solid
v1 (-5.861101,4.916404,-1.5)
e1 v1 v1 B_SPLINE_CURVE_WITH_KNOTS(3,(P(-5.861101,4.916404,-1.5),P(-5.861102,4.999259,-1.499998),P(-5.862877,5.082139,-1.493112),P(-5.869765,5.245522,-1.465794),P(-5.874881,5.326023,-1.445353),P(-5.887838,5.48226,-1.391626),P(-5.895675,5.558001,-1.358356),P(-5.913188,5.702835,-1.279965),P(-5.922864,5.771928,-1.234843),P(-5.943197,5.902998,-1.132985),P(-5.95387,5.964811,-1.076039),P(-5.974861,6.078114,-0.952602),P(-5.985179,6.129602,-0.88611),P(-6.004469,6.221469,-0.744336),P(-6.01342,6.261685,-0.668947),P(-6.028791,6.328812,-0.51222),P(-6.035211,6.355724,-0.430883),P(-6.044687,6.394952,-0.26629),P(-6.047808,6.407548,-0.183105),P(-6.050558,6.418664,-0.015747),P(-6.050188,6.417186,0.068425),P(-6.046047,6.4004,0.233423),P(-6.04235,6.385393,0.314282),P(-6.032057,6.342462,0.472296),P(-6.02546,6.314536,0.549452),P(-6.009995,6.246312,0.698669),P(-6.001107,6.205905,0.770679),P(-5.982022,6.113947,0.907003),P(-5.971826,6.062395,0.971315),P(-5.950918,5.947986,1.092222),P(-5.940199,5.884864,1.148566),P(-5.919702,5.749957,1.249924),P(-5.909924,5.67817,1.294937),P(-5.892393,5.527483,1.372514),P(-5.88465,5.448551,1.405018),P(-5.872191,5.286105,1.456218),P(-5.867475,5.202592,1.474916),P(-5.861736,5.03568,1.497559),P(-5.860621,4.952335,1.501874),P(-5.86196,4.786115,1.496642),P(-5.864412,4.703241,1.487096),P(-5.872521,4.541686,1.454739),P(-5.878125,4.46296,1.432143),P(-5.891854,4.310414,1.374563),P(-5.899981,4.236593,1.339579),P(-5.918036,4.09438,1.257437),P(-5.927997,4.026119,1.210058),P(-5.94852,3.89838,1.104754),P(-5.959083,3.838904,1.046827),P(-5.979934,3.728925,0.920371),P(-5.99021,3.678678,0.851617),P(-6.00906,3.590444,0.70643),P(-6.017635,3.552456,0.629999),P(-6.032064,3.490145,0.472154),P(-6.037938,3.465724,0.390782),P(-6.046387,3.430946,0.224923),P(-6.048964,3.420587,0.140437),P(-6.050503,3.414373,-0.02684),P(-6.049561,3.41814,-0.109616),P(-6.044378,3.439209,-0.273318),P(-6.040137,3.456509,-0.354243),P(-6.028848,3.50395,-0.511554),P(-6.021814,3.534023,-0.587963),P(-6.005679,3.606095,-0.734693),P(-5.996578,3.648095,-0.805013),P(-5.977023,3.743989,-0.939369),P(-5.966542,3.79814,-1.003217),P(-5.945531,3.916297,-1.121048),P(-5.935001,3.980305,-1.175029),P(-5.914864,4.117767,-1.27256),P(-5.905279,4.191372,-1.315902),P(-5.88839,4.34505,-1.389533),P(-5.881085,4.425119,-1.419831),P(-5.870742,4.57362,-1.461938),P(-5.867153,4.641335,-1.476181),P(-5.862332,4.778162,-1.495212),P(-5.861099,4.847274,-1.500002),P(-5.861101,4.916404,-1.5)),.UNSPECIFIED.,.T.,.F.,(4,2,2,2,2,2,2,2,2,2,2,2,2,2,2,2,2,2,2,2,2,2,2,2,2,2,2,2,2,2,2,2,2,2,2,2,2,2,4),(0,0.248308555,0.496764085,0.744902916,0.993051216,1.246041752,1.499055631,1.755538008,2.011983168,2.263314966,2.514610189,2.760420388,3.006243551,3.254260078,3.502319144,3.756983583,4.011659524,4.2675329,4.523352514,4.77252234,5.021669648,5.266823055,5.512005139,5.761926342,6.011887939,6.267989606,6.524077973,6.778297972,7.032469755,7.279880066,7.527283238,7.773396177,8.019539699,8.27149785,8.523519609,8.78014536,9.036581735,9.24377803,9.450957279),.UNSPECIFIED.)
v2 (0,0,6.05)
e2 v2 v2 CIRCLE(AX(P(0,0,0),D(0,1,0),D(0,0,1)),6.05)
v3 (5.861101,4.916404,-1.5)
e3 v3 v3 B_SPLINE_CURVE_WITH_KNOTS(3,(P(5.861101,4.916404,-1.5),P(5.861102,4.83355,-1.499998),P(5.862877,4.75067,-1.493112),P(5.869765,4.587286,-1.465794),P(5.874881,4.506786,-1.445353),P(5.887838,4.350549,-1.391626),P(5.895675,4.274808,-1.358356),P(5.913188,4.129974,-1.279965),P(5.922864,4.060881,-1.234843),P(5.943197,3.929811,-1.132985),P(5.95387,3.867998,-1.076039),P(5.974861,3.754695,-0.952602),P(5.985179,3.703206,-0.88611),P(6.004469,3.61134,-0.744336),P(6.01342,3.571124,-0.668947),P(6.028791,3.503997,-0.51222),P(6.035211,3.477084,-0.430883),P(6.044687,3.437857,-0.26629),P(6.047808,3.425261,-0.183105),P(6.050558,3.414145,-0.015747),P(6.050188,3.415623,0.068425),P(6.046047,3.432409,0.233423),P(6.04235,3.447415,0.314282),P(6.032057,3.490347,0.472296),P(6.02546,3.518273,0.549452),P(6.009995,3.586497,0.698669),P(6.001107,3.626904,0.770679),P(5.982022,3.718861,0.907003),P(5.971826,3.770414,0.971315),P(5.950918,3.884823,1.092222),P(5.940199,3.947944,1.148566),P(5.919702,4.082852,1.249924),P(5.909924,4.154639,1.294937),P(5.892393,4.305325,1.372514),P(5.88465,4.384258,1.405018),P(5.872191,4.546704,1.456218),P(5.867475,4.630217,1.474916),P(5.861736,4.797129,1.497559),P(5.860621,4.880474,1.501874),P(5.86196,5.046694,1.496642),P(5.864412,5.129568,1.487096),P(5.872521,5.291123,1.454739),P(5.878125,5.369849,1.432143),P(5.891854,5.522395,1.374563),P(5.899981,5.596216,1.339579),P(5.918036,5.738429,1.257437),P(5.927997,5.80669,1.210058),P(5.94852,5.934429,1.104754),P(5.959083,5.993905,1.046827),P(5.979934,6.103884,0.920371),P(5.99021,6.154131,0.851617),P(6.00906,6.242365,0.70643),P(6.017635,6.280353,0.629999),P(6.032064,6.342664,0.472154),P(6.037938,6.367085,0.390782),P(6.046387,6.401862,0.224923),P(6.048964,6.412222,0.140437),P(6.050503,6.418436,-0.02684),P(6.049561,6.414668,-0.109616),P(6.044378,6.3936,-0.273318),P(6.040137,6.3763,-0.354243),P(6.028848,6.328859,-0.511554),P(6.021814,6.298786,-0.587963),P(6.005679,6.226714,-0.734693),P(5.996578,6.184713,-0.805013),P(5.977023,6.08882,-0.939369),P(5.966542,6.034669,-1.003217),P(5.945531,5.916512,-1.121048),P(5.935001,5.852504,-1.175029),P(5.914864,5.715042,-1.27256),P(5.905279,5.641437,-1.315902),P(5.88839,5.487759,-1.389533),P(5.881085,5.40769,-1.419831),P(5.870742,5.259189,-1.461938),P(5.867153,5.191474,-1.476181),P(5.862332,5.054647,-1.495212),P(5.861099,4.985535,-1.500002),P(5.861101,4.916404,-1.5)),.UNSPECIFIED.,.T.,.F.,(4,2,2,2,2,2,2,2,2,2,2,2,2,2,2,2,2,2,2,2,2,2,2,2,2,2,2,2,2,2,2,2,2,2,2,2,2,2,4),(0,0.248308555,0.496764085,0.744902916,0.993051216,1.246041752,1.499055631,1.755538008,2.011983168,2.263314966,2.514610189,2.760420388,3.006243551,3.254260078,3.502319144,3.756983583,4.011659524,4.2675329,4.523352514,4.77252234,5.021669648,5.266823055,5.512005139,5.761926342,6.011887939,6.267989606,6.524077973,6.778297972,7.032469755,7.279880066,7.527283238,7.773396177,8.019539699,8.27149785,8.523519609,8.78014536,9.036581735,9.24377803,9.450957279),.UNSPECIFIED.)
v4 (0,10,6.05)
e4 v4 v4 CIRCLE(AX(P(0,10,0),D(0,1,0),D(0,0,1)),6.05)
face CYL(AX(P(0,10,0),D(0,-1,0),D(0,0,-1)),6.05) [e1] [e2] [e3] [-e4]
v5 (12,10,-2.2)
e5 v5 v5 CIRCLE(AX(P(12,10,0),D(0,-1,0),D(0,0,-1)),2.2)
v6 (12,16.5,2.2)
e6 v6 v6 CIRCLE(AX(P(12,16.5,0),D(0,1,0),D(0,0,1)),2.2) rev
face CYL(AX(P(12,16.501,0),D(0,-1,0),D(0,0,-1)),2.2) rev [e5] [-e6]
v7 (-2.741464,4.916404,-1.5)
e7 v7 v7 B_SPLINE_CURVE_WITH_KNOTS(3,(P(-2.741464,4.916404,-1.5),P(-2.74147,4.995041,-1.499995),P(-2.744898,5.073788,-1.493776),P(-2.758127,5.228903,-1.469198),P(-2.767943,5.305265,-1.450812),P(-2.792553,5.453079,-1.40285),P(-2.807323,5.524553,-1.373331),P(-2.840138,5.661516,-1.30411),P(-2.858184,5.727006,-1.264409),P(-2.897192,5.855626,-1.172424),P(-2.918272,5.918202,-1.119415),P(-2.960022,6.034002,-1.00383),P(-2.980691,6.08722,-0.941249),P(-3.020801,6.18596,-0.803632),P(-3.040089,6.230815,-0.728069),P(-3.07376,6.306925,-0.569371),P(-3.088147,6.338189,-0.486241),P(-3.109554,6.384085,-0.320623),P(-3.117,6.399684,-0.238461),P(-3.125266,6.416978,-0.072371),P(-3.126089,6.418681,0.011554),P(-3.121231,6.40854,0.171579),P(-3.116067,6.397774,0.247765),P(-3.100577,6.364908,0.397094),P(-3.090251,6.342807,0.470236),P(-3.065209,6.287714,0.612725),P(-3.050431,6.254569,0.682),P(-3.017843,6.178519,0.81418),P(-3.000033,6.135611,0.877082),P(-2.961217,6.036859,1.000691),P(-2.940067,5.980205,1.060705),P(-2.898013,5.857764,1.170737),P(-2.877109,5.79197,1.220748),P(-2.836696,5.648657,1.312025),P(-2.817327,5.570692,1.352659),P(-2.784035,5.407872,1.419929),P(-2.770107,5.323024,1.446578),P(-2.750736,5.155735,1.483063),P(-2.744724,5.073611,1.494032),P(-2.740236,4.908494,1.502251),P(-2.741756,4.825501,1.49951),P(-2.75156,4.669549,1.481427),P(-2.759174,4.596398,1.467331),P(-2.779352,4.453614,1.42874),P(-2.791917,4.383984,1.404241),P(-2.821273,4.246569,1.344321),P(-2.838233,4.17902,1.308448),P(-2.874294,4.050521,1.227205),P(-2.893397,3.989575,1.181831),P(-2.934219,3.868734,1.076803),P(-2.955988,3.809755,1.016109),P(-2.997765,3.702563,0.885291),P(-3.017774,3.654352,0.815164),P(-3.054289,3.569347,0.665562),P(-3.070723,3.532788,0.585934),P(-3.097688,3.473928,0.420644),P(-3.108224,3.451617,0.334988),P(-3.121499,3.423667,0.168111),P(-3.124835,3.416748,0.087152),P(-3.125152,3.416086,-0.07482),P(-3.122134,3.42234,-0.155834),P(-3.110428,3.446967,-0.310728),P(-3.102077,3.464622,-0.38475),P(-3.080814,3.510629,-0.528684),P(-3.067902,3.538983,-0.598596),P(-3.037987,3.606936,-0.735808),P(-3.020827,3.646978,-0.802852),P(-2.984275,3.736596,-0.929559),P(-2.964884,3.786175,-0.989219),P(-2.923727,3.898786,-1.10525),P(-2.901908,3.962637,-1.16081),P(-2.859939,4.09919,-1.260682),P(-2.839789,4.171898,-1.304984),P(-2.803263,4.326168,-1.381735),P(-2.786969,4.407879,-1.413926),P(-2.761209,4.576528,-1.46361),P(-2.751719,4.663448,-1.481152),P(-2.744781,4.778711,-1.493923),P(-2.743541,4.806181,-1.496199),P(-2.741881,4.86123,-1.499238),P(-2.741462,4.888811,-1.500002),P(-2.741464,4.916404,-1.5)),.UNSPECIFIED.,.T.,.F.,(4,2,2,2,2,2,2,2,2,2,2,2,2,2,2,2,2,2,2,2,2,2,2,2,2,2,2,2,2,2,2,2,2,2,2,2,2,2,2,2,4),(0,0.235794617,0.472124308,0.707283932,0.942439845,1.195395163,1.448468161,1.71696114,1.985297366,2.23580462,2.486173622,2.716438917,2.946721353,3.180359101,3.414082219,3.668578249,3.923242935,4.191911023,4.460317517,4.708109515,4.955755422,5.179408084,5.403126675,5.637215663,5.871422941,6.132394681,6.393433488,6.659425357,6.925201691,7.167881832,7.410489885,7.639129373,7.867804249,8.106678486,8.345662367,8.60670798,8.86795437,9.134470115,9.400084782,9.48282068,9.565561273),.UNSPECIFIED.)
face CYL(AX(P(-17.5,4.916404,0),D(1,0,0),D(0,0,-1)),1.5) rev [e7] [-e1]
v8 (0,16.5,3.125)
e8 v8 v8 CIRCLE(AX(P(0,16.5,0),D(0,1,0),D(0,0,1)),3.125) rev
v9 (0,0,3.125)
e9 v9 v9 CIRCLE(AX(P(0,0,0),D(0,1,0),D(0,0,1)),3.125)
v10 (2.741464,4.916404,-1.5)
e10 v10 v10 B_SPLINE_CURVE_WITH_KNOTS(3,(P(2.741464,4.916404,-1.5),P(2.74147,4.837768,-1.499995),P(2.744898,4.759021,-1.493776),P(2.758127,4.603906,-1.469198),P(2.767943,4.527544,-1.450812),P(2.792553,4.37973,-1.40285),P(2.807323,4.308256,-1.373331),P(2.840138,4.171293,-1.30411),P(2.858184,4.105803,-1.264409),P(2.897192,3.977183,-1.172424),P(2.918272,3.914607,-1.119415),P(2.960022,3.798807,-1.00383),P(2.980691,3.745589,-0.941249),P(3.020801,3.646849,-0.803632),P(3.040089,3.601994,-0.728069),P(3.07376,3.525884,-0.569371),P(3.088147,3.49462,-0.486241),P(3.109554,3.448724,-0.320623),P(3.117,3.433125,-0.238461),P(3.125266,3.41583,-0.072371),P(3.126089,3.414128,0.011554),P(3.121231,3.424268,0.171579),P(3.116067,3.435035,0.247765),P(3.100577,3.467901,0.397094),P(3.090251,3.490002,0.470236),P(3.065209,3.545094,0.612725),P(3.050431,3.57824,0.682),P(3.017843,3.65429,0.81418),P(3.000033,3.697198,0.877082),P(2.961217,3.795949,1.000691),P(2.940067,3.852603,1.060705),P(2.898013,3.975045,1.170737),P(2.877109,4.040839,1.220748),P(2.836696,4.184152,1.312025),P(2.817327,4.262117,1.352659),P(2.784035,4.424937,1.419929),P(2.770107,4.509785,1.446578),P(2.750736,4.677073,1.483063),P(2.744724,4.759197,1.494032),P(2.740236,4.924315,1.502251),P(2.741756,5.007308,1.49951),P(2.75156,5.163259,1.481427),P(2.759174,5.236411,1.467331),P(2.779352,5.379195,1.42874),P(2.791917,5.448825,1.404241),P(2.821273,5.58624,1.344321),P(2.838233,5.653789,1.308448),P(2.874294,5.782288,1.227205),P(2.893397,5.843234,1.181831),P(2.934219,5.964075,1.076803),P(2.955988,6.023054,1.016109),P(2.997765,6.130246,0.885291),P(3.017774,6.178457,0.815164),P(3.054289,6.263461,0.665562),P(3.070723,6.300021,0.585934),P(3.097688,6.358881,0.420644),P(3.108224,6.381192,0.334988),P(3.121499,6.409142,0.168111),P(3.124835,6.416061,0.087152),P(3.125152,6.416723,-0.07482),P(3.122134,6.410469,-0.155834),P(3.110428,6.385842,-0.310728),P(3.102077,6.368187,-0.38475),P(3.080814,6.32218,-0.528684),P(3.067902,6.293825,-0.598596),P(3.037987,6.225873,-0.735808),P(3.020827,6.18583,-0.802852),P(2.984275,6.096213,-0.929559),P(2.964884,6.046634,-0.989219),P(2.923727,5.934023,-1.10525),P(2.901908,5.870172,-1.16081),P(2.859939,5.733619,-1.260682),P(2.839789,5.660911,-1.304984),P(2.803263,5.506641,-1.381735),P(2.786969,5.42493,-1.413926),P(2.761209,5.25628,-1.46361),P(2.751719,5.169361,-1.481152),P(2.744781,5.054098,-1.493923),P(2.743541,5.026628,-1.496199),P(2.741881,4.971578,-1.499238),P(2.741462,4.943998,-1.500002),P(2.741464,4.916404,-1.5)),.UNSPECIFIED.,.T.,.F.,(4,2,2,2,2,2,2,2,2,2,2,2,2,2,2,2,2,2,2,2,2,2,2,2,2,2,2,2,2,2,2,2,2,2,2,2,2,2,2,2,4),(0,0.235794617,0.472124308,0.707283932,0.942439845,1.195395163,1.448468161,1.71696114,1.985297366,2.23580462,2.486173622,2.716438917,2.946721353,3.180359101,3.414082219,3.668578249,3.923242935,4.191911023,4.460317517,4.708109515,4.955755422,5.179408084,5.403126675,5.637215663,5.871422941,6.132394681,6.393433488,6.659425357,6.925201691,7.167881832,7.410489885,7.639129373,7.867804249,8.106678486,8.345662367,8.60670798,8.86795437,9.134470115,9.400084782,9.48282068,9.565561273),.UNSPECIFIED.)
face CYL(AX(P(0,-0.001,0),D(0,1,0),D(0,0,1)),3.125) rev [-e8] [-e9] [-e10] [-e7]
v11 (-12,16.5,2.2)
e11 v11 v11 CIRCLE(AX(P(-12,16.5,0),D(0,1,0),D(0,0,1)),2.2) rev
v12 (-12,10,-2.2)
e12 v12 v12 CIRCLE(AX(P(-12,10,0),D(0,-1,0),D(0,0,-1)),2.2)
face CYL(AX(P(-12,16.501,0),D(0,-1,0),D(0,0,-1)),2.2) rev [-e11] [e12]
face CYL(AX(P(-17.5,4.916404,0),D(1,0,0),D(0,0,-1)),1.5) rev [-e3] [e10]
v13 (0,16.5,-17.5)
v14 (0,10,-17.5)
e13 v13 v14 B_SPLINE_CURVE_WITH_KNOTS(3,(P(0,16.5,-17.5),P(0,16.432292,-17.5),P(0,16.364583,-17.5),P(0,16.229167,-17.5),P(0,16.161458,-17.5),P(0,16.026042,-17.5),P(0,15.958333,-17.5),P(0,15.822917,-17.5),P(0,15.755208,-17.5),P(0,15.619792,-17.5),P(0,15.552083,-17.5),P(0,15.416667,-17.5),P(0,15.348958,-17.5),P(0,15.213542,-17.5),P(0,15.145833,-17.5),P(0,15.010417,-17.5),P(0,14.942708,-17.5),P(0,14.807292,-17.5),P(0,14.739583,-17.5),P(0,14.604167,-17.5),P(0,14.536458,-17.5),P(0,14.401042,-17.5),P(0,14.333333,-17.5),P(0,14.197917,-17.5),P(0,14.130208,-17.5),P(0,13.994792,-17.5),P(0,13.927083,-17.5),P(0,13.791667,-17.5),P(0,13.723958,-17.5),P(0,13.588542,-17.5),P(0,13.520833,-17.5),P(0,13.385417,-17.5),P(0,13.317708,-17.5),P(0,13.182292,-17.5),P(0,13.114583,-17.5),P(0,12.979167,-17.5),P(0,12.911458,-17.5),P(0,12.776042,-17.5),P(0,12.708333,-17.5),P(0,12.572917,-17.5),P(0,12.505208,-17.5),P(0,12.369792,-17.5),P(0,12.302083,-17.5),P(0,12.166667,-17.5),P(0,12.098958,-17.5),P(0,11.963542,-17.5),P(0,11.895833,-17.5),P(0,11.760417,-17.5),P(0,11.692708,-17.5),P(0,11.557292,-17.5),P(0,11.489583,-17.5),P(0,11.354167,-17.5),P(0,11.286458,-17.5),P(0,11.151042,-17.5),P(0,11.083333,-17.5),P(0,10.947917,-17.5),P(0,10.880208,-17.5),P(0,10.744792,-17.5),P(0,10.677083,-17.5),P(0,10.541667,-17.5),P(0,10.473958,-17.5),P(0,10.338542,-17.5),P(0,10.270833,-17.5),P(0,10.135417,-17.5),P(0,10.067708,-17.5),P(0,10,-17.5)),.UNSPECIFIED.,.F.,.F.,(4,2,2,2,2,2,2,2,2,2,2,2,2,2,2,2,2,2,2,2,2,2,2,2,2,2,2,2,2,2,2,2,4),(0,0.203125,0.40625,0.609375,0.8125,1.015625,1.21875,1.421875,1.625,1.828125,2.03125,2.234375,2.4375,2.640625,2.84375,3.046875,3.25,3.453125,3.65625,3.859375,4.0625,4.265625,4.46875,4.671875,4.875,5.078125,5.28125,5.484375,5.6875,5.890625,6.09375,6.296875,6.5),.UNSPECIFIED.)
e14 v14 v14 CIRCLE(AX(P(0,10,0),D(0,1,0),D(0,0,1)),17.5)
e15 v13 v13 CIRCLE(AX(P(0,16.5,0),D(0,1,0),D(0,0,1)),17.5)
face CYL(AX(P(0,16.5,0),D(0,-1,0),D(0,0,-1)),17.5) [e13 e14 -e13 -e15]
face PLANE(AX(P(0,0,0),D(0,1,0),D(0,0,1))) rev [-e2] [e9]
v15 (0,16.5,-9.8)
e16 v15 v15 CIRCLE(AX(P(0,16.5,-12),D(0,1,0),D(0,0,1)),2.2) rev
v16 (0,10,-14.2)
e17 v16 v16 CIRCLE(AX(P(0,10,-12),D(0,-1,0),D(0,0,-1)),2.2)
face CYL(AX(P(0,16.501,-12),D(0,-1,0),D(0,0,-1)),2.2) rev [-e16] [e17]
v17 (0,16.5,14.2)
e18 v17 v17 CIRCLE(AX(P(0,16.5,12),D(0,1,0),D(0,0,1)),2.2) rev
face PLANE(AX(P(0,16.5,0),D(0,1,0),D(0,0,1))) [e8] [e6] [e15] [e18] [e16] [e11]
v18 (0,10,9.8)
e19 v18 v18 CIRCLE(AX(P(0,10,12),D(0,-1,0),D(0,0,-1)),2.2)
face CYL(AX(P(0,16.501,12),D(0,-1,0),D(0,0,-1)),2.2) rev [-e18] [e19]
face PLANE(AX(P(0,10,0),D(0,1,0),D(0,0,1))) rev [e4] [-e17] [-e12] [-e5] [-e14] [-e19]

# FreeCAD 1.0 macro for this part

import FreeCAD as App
import Part
import Sketcher
from FreeCAD import Vector
Q = App.Units.Quantity

doc = App.newDocument("Part")
body = doc.addObject("PartDesign::Body", "Body")

sketch1 = body.newObject("Sketcher::SketchObject", "Sketch")
sketch1.AttachmentSupport = (doc.getObject("XZ_Plane"), [""])
sketch1.MapMode = "FlatFace"
sketch1.addGeometry(Part.Circle(Vector(0, 0, 0), Vector(0, 0, 1), 6), False)
sketch1.addGeometry(Part.Circle(Vector(0, 0, 0), Vector(0, 0, 1), 3), False)
sketch1.addConstraint(Sketcher.Constraint("Coincident", 0, 3, -1, 1))
sketch1.addConstraint(Sketcher.Constraint("Coincident", 1, 3, -1, 1))
sketch1.addConstraint(Sketcher.Constraint("Diameter", 0, Q("12.1 mm")))
sketch1.addConstraint(Sketcher.Constraint("Diameter", 1, Q("6.1 mm")))
pad1 = body.newObject("PartDesign::Pad", "Pad")
pad1.Profile = sketch1
pad1.Length = 10
pad1.Reversed = True

sketch2 = body.newObject("Sketcher::SketchObject", "Sketch001")
sketch2.AttachmentSupport = (doc.getObject("XZ_Plane"), [""])
sketch2.MapMode = "FlatFace"
sketch2.AttachmentOffset = App.Placement(Vector(0, 0, -10), App.Rotation())
sketch2.addGeometry(Part.Circle(Vector(0, 0, 0), Vector(0, 0, 1), 18), False)
sketch2.addConstraint(Sketcher.Constraint("Coincident", 0, 3, -1, 1))
sketch2.addConstraint(Sketcher.Constraint("Diameter", 0, Q("35 mm")))
pad2 = body.newObject("PartDesign::Pad", "Pad001")
pad2.Profile = sketch2
pad2.Length = 6.5
pad2.Reversed = True

sketch3 = body.newObject("Sketcher::SketchObject", "Sketch002")
sketch3.AttachmentSupport = (doc.getObject("XZ_Plane"), [""])
sketch3.MapMode = "FlatFace"
sketch3.AttachmentOffset = App.Placement(Vector(0, 0, -10), App.Rotation())
sketch3.addGeometry(Part.Circle(Vector(12, 0, 0), Vector(0, 0, 1), 2.2), False)
sketch3.addConstraint(Sketcher.Constraint("PointOnObject", 0, 3, -1))
sketch3.addConstraint(Sketcher.Constraint("Diameter", 0, Q("4.4 mm")))
sketch3.addConstraint(Sketcher.Constraint("DistanceX", -1, 1, 0, 3, Q("12 mm")))
pocket1 = body.newObject("PartDesign::Pocket", "Pocket")
pocket1.Profile = sketch3
pocket1.Type = "UpToFirst"

sketch4 = body.newObject("Sketcher::SketchObject", "Sketch003")
sketch4.AttachmentSupport = (doc.getObject("XZ_Plane"), [""])
sketch4.MapMode = "FlatFace"
sketch4.AttachmentOffset = App.Placement(Vector(0, 0, -10), App.Rotation())
sketch4.addGeometry(Part.Circle(Vector(0, -12, 0), Vector(0, 0, 1), 2.2), False)
sketch4.addConstraint(Sketcher.Constraint("PointOnObject", 0, 3, -2))
sketch4.addConstraint(Sketcher.Constraint("Diameter", 0, Q("4.4 mm")))
sketch4.addConstraint(Sketcher.Constraint("DistanceY", 0, 3, -1, 1, Q("12 mm")))
pocket2 = body.newObject("PartDesign::Pocket", "Pocket001")
pocket2.Profile = sketch4
pocket2.Type = "UpToFirst"

sketch5 = body.newObject("Sketcher::SketchObject", "Sketch004")
sketch5.AttachmentSupport = (doc.getObject("XZ_Plane"), [""])
sketch5.MapMode = "FlatFace"
sketch5.AttachmentOffset = App.Placement(Vector(0, 0, -10), App.Rotation())
sketch5.addGeometry(Part.Circle(Vector(-12, 0, 0), Vector(0, 0, 1), 2.2), False)
sketch5.addConstraint(Sketcher.Constraint("PointOnObject", 0, 3, -1))
sketch5.addConstraint(Sketcher.Constraint("Diameter", 0, Q("4.4 mm")))
sketch5.addConstraint(Sketcher.Constraint("DistanceX", 0, 3, -1, 1, Q("12 mm")))
pocket3 = body.newObject("PartDesign::Pocket", "Pocket002")
pocket3.Profile = sketch5
pocket3.Type = "UpToFirst"

sketch6 = body.newObject("Sketcher::SketchObject", "Sketch005")
sketch6.AttachmentSupport = (doc.getObject("XZ_Plane"), [""])
sketch6.MapMode = "FlatFace"
sketch6.AttachmentOffset = App.Placement(Vector(0, 0, -10), App.Rotation())
sketch6.addGeometry(Part.Circle(Vector(0, 12, 0), Vector(0, 0, 1), 2.2), False)
sketch6.addConstraint(Sketcher.Constraint("PointOnObject", 0, 3, -2))
sketch6.addConstraint(Sketcher.Constraint("Diameter", 0, Q("4.4 mm")))
sketch6.addConstraint(Sketcher.Constraint("DistanceY", -1, 1, 0, 3, Q("12 mm")))
pocket4 = body.newObject("PartDesign::Pocket", "Pocket003")
pocket4.Profile = sketch6
pocket4.Type = "UpToFirst"

sketch7 = body.newObject("Sketcher::SketchObject", "Sketch006")
sketch7.AttachmentSupport = (doc.getObject("YZ_Plane"), [""])
sketch7.MapMode = "FlatFace"
sketch7.addGeometry(Part.Circle(Vector(4.9, 0, 0), Vector(0, 0, 1), 1.5), False)
sketch7.addConstraint(Sketcher.Constraint("PointOnObject", 0, 3, -1))
sketch7.addConstraint(Sketcher.Constraint("Diameter", 0, Q("3 mm")))
sketch7.addConstraint(Sketcher.Constraint("DistanceX", -1, 1, 0, 3, Q("4.916404 mm")))
pocket5 = body.newObject("PartDesign::Pocket", "Pocket004")
pocket5.Profile = sketch7
pocket5.Type = "ThroughAll"
pocket5.Midplane = True

sketch8 = body.newObject("Sketcher::SketchObject", "Sketch007")
sketch8.AttachmentSupport = (doc.getObject("XZ_Plane"), [""])
sketch8.MapMode = "FlatFace"
sketch8.AttachmentOffset = App.Placement(Vector(0, 0, -10), App.Rotation())
sketch8.addGeometry(Part.Circle(Vector(0, 0, 0), Vector(0, 0, 1), 3.1), False)
sketch8.addConstraint(Sketcher.Constraint("Coincident", 0, 3, -1, 1))
sketch8.addConstraint(Sketcher.Constraint("Diameter", 0, Q("6.25 mm")))
pocket6 = body.newObject("PartDesign::Pocket", "Pocket005")
pocket6.Profile = sketch8
pocket6.Type = "UpToFirst"

sketch9 = body.newObject("Sketcher::SketchObject", "Sketch008")
sketch9.AttachmentSupport = (doc.getObject("XZ_Plane"), [""])
sketch9.MapMode = "FlatFace"
sketch9.AttachmentOffset = App.Placement(Vector(0, 0, -10), App.Rotation())
sketch9.addGeometry(Part.Circle(Vector(0, 0, 0), Vector(0, 0, 1), 3.1), False)
sketch9.addConstraint(Sketcher.Constraint("Coincident", 0, 3, -1, 1))
sketch9.addConstraint(Sketcher.Constraint("Diameter", 0, Q("6.25 mm")))
pocket7 = body.newObject("PartDesign::Pocket", "Pocket006")
pocket7.Profile = sketch9
pocket7.Length = 10
pocket7.Reversed = True

doc.recompute()
